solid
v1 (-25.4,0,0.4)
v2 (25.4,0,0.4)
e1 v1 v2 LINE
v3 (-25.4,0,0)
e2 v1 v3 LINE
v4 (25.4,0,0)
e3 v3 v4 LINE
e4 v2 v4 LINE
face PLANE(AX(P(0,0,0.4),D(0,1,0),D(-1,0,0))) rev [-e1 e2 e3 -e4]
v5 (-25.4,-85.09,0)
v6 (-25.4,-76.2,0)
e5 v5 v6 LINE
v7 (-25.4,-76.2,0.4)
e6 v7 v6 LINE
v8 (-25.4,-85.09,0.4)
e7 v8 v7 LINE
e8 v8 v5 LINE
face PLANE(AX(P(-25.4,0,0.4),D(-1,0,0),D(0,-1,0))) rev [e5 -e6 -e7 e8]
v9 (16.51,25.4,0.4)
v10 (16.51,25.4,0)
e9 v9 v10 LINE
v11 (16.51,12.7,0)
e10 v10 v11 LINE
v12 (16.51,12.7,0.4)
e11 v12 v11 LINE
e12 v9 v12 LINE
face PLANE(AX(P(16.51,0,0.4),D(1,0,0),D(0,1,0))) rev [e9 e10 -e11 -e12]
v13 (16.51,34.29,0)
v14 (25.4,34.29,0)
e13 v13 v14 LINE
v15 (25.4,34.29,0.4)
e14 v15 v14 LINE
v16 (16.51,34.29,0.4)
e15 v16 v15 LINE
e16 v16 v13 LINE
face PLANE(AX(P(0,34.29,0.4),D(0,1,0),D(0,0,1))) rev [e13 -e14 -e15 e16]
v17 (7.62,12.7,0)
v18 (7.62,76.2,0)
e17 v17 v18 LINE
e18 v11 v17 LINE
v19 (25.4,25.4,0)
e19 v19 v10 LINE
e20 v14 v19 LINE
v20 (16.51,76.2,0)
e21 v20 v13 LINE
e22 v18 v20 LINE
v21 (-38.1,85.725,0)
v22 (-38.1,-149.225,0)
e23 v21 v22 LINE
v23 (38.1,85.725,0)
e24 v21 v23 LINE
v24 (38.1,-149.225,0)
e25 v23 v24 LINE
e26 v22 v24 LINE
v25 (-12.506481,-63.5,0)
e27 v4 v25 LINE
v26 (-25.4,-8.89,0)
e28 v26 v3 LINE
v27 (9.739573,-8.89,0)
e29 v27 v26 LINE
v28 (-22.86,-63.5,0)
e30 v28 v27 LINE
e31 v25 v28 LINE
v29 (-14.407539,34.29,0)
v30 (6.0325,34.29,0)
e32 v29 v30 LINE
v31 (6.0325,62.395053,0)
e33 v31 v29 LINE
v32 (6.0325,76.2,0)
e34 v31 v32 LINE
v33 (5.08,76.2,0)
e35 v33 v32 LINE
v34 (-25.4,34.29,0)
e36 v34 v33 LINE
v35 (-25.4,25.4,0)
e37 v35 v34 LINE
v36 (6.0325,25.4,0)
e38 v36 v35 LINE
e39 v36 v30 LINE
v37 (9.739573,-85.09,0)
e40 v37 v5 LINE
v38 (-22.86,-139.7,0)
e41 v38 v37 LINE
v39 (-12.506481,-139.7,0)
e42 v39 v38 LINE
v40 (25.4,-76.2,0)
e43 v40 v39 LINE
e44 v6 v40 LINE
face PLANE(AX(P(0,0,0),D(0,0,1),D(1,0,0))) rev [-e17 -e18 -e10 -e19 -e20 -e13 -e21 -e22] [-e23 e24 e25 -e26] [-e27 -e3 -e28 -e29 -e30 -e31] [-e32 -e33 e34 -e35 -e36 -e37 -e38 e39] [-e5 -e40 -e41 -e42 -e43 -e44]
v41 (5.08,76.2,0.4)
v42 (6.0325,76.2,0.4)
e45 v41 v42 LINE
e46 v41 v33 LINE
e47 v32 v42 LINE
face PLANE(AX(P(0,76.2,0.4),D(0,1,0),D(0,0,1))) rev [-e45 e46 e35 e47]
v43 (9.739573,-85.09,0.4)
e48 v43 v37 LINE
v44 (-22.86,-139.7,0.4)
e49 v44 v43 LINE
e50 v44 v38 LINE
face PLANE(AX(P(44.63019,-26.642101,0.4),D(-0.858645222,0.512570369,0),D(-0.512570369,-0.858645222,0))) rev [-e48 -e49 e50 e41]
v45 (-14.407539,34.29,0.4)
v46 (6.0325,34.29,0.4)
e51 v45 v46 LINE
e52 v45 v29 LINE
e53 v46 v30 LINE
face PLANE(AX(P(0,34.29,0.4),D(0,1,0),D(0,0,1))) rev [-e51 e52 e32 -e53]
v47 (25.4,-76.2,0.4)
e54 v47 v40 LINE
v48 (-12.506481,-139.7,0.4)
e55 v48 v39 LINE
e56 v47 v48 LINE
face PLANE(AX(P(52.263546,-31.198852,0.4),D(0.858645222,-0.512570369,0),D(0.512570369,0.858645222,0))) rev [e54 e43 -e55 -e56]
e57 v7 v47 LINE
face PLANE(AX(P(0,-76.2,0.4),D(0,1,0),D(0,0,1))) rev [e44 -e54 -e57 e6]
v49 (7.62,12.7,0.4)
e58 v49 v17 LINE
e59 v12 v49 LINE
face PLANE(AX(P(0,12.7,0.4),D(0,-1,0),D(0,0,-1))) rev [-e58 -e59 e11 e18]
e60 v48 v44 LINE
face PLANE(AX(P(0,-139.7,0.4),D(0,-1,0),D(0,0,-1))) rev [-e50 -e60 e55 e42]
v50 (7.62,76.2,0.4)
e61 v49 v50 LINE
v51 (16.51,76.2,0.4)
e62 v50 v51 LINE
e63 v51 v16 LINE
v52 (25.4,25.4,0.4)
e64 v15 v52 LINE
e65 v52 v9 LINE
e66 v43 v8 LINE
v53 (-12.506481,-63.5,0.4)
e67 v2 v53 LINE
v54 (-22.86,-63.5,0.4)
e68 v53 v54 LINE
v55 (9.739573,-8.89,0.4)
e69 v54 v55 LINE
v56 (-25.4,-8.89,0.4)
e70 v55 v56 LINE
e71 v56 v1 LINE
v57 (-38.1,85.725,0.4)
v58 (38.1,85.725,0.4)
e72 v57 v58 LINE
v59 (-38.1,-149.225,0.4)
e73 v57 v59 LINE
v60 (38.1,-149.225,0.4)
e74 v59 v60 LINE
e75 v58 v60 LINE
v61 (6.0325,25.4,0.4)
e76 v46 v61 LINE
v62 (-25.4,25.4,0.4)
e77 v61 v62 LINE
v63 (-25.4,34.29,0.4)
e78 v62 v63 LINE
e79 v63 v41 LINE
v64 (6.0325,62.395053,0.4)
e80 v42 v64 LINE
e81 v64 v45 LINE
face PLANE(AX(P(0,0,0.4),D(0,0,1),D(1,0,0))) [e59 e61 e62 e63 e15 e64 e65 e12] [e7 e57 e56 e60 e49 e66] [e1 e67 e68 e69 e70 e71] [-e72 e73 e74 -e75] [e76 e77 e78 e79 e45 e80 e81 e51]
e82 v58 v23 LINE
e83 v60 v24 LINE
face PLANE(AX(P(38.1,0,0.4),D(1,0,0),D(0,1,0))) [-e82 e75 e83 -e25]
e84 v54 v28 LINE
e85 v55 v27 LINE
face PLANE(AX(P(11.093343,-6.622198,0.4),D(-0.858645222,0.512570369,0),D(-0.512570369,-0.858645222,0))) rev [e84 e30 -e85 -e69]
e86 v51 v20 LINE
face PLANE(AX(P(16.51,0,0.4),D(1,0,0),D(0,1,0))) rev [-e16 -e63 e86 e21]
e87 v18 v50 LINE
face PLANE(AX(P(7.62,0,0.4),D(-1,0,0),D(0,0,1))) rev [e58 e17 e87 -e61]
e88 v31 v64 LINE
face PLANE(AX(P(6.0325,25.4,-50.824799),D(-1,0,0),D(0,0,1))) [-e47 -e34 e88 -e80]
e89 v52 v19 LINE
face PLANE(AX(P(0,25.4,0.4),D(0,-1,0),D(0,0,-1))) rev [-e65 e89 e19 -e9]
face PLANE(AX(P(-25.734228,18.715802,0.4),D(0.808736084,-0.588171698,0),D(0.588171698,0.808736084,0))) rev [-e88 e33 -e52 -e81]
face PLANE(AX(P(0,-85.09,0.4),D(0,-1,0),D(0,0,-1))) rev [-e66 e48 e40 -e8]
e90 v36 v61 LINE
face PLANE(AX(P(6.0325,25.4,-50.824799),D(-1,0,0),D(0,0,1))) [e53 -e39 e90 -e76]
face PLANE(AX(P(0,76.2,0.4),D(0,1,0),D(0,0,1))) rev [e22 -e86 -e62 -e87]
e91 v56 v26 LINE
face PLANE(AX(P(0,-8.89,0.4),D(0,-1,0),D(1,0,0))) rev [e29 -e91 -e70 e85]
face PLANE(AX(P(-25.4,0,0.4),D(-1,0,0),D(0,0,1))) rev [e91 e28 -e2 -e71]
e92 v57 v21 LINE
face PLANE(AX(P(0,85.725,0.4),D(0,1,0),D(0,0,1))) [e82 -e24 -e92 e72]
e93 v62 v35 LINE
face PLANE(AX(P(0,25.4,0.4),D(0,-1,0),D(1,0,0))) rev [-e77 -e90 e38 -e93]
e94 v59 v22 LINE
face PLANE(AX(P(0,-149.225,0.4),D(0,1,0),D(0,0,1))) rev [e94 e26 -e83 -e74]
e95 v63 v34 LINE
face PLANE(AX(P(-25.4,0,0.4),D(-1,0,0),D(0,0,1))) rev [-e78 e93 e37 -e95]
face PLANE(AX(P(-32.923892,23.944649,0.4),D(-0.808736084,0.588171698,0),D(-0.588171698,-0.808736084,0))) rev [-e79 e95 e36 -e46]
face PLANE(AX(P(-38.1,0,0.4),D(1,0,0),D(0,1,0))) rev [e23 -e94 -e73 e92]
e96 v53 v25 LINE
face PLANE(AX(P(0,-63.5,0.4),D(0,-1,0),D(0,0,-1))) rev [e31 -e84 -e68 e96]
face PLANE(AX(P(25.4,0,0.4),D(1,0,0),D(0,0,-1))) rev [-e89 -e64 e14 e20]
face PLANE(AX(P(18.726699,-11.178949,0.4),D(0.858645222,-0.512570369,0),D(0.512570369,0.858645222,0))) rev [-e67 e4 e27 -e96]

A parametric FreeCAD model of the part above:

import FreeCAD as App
import Part
import Sketcher
Q = App.Units.Quantity

doc = App.newDocument("Part")
params = doc.addObject("Spreadsheet::Sheet", "Params")
for row, (alias, value) in enumerate([
    ("pad1_length", "0.4 mm"),
    ("sketch2_width", "3 in"),
    ("sketch2_width2", "2 in"),
    ("sketch2_width3", "1.3 in"),
    ("sketch2_height", "0.5 in"),
    ("sketch2_width4", "0.45 in"),
    ("pad2_length", "0.4 mm"),
    ("sketch3_height", "2 in"),
    ("sketch3_width", "0.0625 in"),
    ("pad3_length", "0.4 mm"),
], start=1):
    params.set(f"A{row}", alias)
    params.set(f"B{row}", "=" + value)
    params.setAlias(f"B{row}", alias)

body = doc.addObject("PartDesign::Body", "Body")

# Sketch on XY plane
sketch1 = body.newObject("Sketcher::SketchObject", "Sketch")
sketch1.AttachmentSupport = (doc.getObject("XY_Plane"), [""])
sketch1.MapMode = "FlatFace"
sketch1.addGeometry([
    Part.LineSegment(App.Vector(8, 65, 0), App.Vector(-14, 34, 0)),
    Part.LineSegment(App.Vector(-14, 34, 0), App.Vector(8, 34, 0)),
    Part.LineSegment(App.Vector(8, 34, 0), App.Vector(8, 65, 0)),
], False)
sketch1.addConstraint([
    Sketcher.Constraint("Coincident", 0, 2, 1, 1),
    Sketcher.Constraint("Coincident", 1, 2, 2, 1),
    Sketcher.Constraint("Coincident", 2, 2, 0, 1),
    Sketcher.Constraint("Horizontal", 1),
    Sketcher.Constraint("Vertical", 2),
    Sketcher.Constraint("DistanceX", -1, 1, 1, 2, Q("0.3 in")),
    Sketcher.Constraint("DistanceY", -1, 1, 0, 2, Q("1.35 in")),
    Sketcher.Constraint("DistanceX", 1, 1, 1, 2, Q("22.027539 mm")),
    Sketcher.Constraint("DistanceY", 2, 1, 2, 2, Q("30.287866 mm")),
])
pad1 = body.newObject("PartDesign::Pad", "Pad")
pad1.Profile = sketch1
pad1.setExpression("Length", "Params.pad1_length")
body2 = doc.addObject("PartDesign::Body", "Body001")

# Sketch on XY plane
sketch2 = body2.newObject("Sketcher::SketchObject", "Sketch001")
sketch2.AttachmentSupport = (doc.getObject("XY_Plane001"), [""])
sketch2.MapMode = "FlatFace"
sketch2.addGeometry([
    Part.LineSegment(App.Vector(-38, 86, 0), App.Vector(-38, -149, 0)),  # 0
    Part.LineSegment(App.Vector(-38, -149, 0), App.Vector(38, -149, 0)),  # 1
    Part.LineSegment(App.Vector(38, -149, 0), App.Vector(38, 86, 0)),  # 2
    Part.LineSegment(App.Vector(38, 86, 0), App.Vector(-38, 86, 0)),  # 3
    Part.LineSegment(App.Vector(-25, -85, 0), App.Vector(-25, -76, 0)),  # 4
    Part.LineSegment(App.Vector(-25, -76, 0), App.Vector(25, -76, 0)),  # 5
    Part.LineSegment(App.Vector(25, -76, 0), App.Vector(-13, -140, 0)),  # 6
    Part.LineSegment(App.Vector(-13, -140, 0), App.Vector(-23, -140, 0)),  # 7
    Part.LineSegment(App.Vector(-23, -140, 0), App.Vector(10, -85, 0)),  # 8
    Part.LineSegment(App.Vector(10, -85, 0), App.Vector(-25, -85, 0)),  # 9
    Part.LineSegment(App.Vector(-25, -9, 0), App.Vector(-25, 0, 0)),  # 10
    Part.LineSegment(App.Vector(-25, 0, 0), App.Vector(25, 0, 0)),  # 11
    Part.LineSegment(App.Vector(25, 0, 0), App.Vector(-13, -64, 0)),  # 12
    Part.LineSegment(App.Vector(-13, -64, 0), App.Vector(-23, -64, 0)),  # 13
    Part.LineSegment(App.Vector(-23, -64, 0), App.Vector(10, -9, 0)),  # 14
    Part.LineSegment(App.Vector(10, -9, 0), App.Vector(-25, -9, 0)),  # 15
    Part.LineSegment(App.Vector(5, 76, 0), App.Vector(17, 76, 0)),  # 16
    Part.LineSegment(App.Vector(17, 76, 0), App.Vector(17, 34, 0)),  # 17
    Part.LineSegment(App.Vector(17, 34, 0), App.Vector(25, 34, 0)),  # 18
    Part.LineSegment(App.Vector(25, 34, 0), App.Vector(25, 25, 0)),  # 19
    Part.LineSegment(App.Vector(25, 25, 0), App.Vector(17, 25, 0)),  # 20
    Part.LineSegment(App.Vector(17, 25, 0), App.Vector(17, 13, 0)),  # 21
    Part.LineSegment(App.Vector(17, 13, 0), App.Vector(8, 13, 0)),  # 22
    Part.LineSegment(App.Vector(8, 13, 0), App.Vector(8, 25, 0)),  # 23
    Part.LineSegment(App.Vector(8, 25, 0), App.Vector(-25, 25, 0)),  # 24
    Part.LineSegment(App.Vector(-25, 25, 0), App.Vector(-25, 34, 0)),  # 25
    Part.LineSegment(App.Vector(-25, 34, 0), App.Vector(5, 76, 0)),  # 26
], False)
sketch2.addConstraint([
    Sketcher.Constraint("Coincident", 0, 2, 1, 1),
    Sketcher.Constraint("Coincident", 1, 2, 2, 1),
    Sketcher.Constraint("Coincident", 2, 2, 3, 1),
    Sketcher.Constraint("Coincident", 3, 2, 0, 1),
    Sketcher.Constraint("Coincident", 4, 2, 5, 1),
    Sketcher.Constraint("Coincident", 5, 2, 6, 1),
    Sketcher.Constraint("Coincident", 6, 2, 7, 1),
    Sketcher.Constraint("Coincident", 7, 2, 8, 1),
    Sketcher.Constraint("Coincident", 8, 2, 9, 1),
    Sketcher.Constraint("Coincident", 9, 2, 4, 1),
    Sketcher.Constraint("Coincident", 10, 2, 11, 1),
    Sketcher.Constraint("Coincident", 11, 2, 12, 1),
    Sketcher.Constraint("Coincident", 12, 2, 13, 1),
    Sketcher.Constraint("Coincident", 13, 2, 14, 1),
    Sketcher.Constraint("Coincident", 14, 2, 15, 1),
    Sketcher.Constraint("Coincident", 15, 2, 10, 1),
    Sketcher.Constraint("Coincident", 16, 2, 17, 1),
    Sketcher.Constraint("Coincident", 17, 2, 18, 1),
    Sketcher.Constraint("Coincident", 18, 2, 19, 1),
    Sketcher.Constraint("Coincident", 19, 2, 20, 1),
    Sketcher.Constraint("Coincident", 20, 2, 21, 1),
    Sketcher.Constraint("Coincident", 21, 2, 22, 1),
    Sketcher.Constraint("Coincident", 22, 2, 23, 1),
    Sketcher.Constraint("Coincident", 23, 2, 24, 1),
    Sketcher.Constraint("Coincident", 24, 2, 25, 1),
    Sketcher.Constraint("Coincident", 25, 2, 26, 1),
    Sketcher.Constraint("Coincident", 26, 2, 16, 1),
    Sketcher.Constraint("Vertical", 0),
    Sketcher.Constraint("Horizontal", 1),
    Sketcher.Constraint("Vertical", 2),
    Sketcher.Constraint("Horizontal", 3),
    Sketcher.Constraint("Vertical", 4),
    Sketcher.Constraint("Horizontal", 5),
    Sketcher.Constraint("Horizontal", 7),
    Sketcher.Constraint("Horizontal", 9),
    Sketcher.Constraint("Vertical", 10),
    Sketcher.Constraint("Horizontal", 11),
    Sketcher.Constraint("Horizontal", 13),
    Sketcher.Constraint("Horizontal", 15),
    Sketcher.Constraint("Horizontal", 16),
    Sketcher.Constraint("Vertical", 17),
    Sketcher.Constraint("Horizontal", 18),
    Sketcher.Constraint("Vertical", 19),
    Sketcher.Constraint("Horizontal", 20),
    Sketcher.Constraint("Vertical", 21),
    Sketcher.Constraint("Horizontal", 22),
    Sketcher.Constraint("Vertical", 23),
    Sketcher.Constraint("Horizontal", 24),
    Sketcher.Constraint("Vertical", 25),
    Sketcher.Constraint("Symmetric", 10, 2, 11, 2, -1, 1),
    Sketcher.Constraint("Symmetric", 19, 2, 24, 2, -2),
    Sketcher.Constraint("Parallel", 6, 8),
    Sketcher.Constraint("Parallel", 8, 12),
    Sketcher.Constraint("Parallel", 12, 14),
    Sketcher.Constraint("Horizontal", 18, 2, 25, 2),
    Sketcher.Constraint("Vertical", 9, 2, 10, 2),
    Sketcher.Constraint("Vertical", 5, 2, 11, 2),
    Sketcher.Constraint("Vertical", 6, 2, 12, 2),
    Sketcher.Constraint("Vertical", 7, 2, 13, 2),
    Sketcher.Constraint("Vertical", 8, 2, 14, 2),
    Sketcher.Constraint("Vertical", 11, 2, 18, 2),
    Sketcher.Constraint("Vertical", 17, 2, 20, 2),
    Sketcher.Constraint("Equal", 20, 22),
    Sketcher.Constraint("Equal", 22, 4),
    Sketcher.Constraint("Equal", 10, 19),
    Sketcher.Constraint("DistanceX", 1, 1, 1, 2, Q("3 in")),
    Sketcher.Constraint("DistanceX", 5, 1, 5, 2, Q("2 in")),
    Sketcher.Constraint("DistanceX", 24, 2, 24, 1, Q("1.3 in")),
    Sketcher.Constraint("DistanceY", 21, 2, 21, 1, Q("0.5 in")),
    Sketcher.Constraint("DistanceY", 4, 2, -1, 1, Q("3 in")),
    Sketcher.Constraint("DistanceY", -1, 1, 16, 2, Q("3 in")),
    Sketcher.Constraint("DistanceY", -1, 1, 19, 2, Q("1 in")),
    Sketcher.Constraint("DistanceX", 16, 1, 16, 2, Q("0.45 in")),
    Sketcher.Constraint("DistanceY", 0, 2, 0, 1, Q("9.25 in")),
    Sketcher.Constraint("DistanceX", 0, 2, -1, 1, Q("1.5 in")),
    Sketcher.Constraint("DistanceY", 6, 2, -1, 1, Q("5.5 in")),
    Sketcher.Constraint("DistanceX", 7, 2, -1, 1, Q("0.9 in")),
    Sketcher.Constraint("DistanceY", 0, 2, -1, 1, Q("5.875 in")),
    Sketcher.Constraint("DistanceX", 7, 2, 7, 1, Q("10.353519 mm")),
])
sketch2.setExpression("Constraints[65]", "Params.sketch2_width")
sketch2.setExpression("Constraints[66]", "Params.sketch2_width2")
sketch2.setExpression("Constraints[67]", "Params.sketch2_width3")
sketch2.setExpression("Constraints[68]", "Params.sketch2_height")
sketch2.setExpression("Constraints[72]", "Params.sketch2_width4")
pad2 = body2.newObject("PartDesign::Pad", "Pad001")
pad2.Profile = sketch2
pad2.setExpression("Length", "Params.pad2_length")
body.AllowCompound = True
doc.recompute()

boolean = body.newObject("PartDesign::Boolean", "Boolean")
boolean.Type = "Fuse"
boolean.addObjects([body2])

# Sketch on XY plane
sketch3 = body.newObject("Sketcher::SketchObject", "Sketch002")
sketch3.AttachmentSupport = (doc.getObject("XY_Plane"), [""])
sketch3.MapMode = "FlatFace"
sketch3.AttachmentOffset = App.Placement(App.Vector(0, 0, 0.4), App.Rotation())
sketch3.addGeometry([
    Part.LineSegment(App.Vector(6, 76.2, 0), App.Vector(6, 25.4, 0)),
    Part.LineSegment(App.Vector(6, 25.4, 0), App.Vector(7.6, 25.4, 0)),
    Part.LineSegment(App.Vector(7.6, 25.4, 0), App.Vector(7.6, 76.2, 0)),
    Part.LineSegment(App.Vector(7.6, 76.2, 0), App.Vector(6, 76.2, 0)),
], False)
sketch3.addConstraint([
    Sketcher.Constraint("Coincident", 0, 2, 1, 1),
    Sketcher.Constraint("Coincident", 1, 2, 2, 1),
    Sketcher.Constraint("Coincident", 2, 2, 3, 1),
    Sketcher.Constraint("Coincident", 3, 2, 0, 1),
    Sketcher.Constraint("Vertical", 0),
    Sketcher.Constraint("Horizontal", 1),
    Sketcher.Constraint("Vertical", 2),
    Sketcher.Constraint("Horizontal", 3),
    Sketcher.Constraint("DistanceY", 0, 2, 0, 1, Q("2 in")),
    Sketcher.Constraint("DistanceY", -1, 1, 0, 2, Q("1 in")),
    Sketcher.Constraint("DistanceX", -1, 1, 1, 2, Q("0.3 in")),
    Sketcher.Constraint("DistanceX", 1, 1, 1, 2, Q("0.0625 in")),
])
sketch3.setExpression("Constraints[8]", "Params.sketch3_height")
sketch3.setExpression("Constraints[11]", "Params.sketch3_width")
pad3 = body.newObject("PartDesign::Pad", "Pad002")
pad3.Profile = sketch3
pad3.setExpression("Length", "Params.pad3_length")
pad3.Reversed = True

doc.recompute()
